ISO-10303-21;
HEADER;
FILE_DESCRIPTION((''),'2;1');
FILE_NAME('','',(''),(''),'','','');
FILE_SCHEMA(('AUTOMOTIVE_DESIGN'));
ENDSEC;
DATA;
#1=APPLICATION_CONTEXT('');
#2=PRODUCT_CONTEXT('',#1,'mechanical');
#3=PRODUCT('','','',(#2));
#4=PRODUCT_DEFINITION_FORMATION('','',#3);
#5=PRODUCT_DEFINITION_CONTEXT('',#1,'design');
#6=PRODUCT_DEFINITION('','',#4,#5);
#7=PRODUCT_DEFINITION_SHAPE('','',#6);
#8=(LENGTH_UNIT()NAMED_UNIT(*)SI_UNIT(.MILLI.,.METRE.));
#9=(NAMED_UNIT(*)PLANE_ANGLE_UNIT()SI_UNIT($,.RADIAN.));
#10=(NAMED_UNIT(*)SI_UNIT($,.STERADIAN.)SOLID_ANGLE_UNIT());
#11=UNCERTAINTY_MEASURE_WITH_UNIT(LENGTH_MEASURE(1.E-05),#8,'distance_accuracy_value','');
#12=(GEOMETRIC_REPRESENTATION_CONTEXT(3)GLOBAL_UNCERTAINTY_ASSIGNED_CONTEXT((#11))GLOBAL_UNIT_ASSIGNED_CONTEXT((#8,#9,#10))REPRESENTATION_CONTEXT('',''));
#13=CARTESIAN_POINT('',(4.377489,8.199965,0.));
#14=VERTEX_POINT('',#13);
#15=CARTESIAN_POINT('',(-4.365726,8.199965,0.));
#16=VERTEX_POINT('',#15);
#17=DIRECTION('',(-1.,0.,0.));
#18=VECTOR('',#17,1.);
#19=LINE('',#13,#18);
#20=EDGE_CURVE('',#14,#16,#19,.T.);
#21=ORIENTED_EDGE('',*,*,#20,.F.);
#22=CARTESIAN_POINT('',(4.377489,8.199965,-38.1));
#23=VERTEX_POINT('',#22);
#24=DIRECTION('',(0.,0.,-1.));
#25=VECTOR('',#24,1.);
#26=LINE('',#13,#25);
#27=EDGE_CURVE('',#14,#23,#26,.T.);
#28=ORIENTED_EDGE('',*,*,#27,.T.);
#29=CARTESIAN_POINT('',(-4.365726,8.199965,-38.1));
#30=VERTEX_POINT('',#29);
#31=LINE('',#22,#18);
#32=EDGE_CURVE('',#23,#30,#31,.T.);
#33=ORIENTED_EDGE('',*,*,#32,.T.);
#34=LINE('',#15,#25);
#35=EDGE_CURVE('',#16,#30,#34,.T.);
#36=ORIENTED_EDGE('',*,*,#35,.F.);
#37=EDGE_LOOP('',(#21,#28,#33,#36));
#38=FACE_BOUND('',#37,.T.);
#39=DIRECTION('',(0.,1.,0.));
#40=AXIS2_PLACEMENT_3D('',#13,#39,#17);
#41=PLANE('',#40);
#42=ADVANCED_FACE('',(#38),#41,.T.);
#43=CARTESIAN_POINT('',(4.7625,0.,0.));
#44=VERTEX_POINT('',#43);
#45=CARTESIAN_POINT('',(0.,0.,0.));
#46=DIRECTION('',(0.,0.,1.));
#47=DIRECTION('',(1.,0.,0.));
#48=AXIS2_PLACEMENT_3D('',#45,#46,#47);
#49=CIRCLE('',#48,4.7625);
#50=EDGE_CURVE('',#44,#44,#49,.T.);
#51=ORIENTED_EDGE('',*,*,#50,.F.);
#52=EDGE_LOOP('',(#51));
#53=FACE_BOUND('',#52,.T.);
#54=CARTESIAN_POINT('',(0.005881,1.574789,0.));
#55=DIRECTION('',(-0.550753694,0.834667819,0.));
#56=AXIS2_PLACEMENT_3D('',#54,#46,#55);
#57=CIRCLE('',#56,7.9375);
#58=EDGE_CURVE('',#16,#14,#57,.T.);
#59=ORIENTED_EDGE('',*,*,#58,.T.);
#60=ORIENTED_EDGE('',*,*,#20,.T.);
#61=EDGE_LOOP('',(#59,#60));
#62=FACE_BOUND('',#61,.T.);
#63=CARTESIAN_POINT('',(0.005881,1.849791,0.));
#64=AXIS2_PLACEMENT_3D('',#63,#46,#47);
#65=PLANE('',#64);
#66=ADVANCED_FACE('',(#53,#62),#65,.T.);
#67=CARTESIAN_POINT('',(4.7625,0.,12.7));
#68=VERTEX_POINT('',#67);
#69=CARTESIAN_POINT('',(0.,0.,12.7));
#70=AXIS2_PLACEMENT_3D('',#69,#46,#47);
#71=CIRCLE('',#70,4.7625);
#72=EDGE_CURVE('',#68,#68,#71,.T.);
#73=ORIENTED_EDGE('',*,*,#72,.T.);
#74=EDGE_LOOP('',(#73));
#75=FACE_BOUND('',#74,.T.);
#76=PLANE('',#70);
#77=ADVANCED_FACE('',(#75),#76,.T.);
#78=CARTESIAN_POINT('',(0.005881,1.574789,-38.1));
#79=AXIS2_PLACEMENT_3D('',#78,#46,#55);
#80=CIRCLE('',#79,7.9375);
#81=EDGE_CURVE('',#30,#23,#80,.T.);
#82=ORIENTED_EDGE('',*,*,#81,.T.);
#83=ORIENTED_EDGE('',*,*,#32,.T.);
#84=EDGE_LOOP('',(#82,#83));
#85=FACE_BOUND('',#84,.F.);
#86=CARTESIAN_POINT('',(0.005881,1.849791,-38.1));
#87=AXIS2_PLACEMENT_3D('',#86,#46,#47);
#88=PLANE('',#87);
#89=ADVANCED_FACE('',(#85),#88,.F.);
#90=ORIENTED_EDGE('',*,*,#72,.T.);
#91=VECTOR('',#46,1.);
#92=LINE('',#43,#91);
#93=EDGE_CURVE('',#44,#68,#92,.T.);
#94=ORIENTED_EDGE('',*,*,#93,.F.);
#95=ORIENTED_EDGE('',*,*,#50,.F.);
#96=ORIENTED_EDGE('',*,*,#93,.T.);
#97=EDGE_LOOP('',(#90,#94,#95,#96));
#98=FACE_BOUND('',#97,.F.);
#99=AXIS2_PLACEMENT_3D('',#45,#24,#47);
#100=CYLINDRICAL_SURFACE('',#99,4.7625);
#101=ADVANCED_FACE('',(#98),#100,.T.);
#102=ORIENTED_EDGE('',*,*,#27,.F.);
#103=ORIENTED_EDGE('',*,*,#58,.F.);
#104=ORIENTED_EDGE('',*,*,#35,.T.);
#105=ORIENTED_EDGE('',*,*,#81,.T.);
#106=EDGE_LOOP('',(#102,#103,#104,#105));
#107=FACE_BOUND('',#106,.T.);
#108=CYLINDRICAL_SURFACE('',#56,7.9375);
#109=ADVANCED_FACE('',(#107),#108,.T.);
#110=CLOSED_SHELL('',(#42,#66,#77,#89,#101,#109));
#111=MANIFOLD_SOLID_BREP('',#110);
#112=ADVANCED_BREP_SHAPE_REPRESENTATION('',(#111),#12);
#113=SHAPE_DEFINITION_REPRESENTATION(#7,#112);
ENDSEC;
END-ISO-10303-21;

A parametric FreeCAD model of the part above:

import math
import FreeCAD as App
import Part
import Sketcher
from FreeCAD import Vector
Q = App.Units.Quantity

doc = App.newDocument("Part")
params = doc.addObject("Spreadsheet::Sheet", "Params")
for row, (alias, value) in enumerate([
    ("sketch1_diameter", "0.375 in"),
    ("pad1_length", "0.5 in"),
    ("sketch2_radius", "0.3125 in"),
    ("pad2_length", "1.5 in"),
], start=1):
    params.set(f"A{row}", alias)
    params.set(f"B{row}", "=" + value)
    params.setAlias(f"B{row}", alias)

body = doc.addObject("PartDesign::Body", "Body")

# Sketch on XY plane
sketch1 = body.newObject("Sketcher::SketchObject", "Sketch")
sketch1.AttachmentSupport = (doc.getObject("XY_Plane"), [""])
sketch1.MapMode = "FlatFace"
sketch1.addGeometry(Part.Circle(Vector(0, 0, 0), Vector(0, 0, 1), 4.7625), False)
sketch1.addConstraint([
    Sketcher.Constraint("Coincident", 0, 3, -1, 1),
    Sketcher.Constraint("Diameter", 0, Q("0.375 in")),
])
sketch1.setExpression("Constraints[1]", "Params.sketch1_diameter")
pad1 = body.newObject("PartDesign::Pad", "Pad")
pad1.Profile = sketch1
pad1.setExpression("Length", "Params.pad1_length")

# Sketch on XY plane
sketch2 = body.newObject("Sketcher::SketchObject", "Sketch001")
sketch2.AttachmentSupport = (doc.getObject("XY_Plane"), [""])
sketch2.MapMode = "FlatFace"
sketch2.addGeometry([
    Part.LineSegment(Vector(4.377489, 8.199965, 0), Vector(-4.365726, 8.199965, 0)),
    Part.ArcOfCircle(Part.Circle(Vector(0.005881, 1.574789, 0), Vector(0, 0, 1), 7.9375), math.radians(123.418735), math.radians(416.581265)),
], False)
sketch2.addConstraint([
    Sketcher.Constraint("Coincident", 0, 1, 1, 2),
    Sketcher.Constraint("Coincident", 1, 1, 0, 2),
    Sketcher.Constraint("Horizontal", 0),
    Sketcher.Constraint("Radius", 1, Q("0.3125 in")),
    Sketcher.Constraint("DistanceX", 0, 2, 0, 1, 8.743215),
    Sketcher.Constraint("DistanceX", -1, 1, 1, 3, 0.005881),
    Sketcher.Constraint("DistanceY", -1, 1, 1, 3, 1.574789),
])
sketch2.setExpression("Constraints[3]", "Params.sketch2_radius")
pad2 = body.newObject("PartDesign::Pad", "Pad001")
pad2.Profile = sketch2
pad2.setExpression("Length", "Params.pad2_length")
pad2.Reversed = True

doc.recompute()
